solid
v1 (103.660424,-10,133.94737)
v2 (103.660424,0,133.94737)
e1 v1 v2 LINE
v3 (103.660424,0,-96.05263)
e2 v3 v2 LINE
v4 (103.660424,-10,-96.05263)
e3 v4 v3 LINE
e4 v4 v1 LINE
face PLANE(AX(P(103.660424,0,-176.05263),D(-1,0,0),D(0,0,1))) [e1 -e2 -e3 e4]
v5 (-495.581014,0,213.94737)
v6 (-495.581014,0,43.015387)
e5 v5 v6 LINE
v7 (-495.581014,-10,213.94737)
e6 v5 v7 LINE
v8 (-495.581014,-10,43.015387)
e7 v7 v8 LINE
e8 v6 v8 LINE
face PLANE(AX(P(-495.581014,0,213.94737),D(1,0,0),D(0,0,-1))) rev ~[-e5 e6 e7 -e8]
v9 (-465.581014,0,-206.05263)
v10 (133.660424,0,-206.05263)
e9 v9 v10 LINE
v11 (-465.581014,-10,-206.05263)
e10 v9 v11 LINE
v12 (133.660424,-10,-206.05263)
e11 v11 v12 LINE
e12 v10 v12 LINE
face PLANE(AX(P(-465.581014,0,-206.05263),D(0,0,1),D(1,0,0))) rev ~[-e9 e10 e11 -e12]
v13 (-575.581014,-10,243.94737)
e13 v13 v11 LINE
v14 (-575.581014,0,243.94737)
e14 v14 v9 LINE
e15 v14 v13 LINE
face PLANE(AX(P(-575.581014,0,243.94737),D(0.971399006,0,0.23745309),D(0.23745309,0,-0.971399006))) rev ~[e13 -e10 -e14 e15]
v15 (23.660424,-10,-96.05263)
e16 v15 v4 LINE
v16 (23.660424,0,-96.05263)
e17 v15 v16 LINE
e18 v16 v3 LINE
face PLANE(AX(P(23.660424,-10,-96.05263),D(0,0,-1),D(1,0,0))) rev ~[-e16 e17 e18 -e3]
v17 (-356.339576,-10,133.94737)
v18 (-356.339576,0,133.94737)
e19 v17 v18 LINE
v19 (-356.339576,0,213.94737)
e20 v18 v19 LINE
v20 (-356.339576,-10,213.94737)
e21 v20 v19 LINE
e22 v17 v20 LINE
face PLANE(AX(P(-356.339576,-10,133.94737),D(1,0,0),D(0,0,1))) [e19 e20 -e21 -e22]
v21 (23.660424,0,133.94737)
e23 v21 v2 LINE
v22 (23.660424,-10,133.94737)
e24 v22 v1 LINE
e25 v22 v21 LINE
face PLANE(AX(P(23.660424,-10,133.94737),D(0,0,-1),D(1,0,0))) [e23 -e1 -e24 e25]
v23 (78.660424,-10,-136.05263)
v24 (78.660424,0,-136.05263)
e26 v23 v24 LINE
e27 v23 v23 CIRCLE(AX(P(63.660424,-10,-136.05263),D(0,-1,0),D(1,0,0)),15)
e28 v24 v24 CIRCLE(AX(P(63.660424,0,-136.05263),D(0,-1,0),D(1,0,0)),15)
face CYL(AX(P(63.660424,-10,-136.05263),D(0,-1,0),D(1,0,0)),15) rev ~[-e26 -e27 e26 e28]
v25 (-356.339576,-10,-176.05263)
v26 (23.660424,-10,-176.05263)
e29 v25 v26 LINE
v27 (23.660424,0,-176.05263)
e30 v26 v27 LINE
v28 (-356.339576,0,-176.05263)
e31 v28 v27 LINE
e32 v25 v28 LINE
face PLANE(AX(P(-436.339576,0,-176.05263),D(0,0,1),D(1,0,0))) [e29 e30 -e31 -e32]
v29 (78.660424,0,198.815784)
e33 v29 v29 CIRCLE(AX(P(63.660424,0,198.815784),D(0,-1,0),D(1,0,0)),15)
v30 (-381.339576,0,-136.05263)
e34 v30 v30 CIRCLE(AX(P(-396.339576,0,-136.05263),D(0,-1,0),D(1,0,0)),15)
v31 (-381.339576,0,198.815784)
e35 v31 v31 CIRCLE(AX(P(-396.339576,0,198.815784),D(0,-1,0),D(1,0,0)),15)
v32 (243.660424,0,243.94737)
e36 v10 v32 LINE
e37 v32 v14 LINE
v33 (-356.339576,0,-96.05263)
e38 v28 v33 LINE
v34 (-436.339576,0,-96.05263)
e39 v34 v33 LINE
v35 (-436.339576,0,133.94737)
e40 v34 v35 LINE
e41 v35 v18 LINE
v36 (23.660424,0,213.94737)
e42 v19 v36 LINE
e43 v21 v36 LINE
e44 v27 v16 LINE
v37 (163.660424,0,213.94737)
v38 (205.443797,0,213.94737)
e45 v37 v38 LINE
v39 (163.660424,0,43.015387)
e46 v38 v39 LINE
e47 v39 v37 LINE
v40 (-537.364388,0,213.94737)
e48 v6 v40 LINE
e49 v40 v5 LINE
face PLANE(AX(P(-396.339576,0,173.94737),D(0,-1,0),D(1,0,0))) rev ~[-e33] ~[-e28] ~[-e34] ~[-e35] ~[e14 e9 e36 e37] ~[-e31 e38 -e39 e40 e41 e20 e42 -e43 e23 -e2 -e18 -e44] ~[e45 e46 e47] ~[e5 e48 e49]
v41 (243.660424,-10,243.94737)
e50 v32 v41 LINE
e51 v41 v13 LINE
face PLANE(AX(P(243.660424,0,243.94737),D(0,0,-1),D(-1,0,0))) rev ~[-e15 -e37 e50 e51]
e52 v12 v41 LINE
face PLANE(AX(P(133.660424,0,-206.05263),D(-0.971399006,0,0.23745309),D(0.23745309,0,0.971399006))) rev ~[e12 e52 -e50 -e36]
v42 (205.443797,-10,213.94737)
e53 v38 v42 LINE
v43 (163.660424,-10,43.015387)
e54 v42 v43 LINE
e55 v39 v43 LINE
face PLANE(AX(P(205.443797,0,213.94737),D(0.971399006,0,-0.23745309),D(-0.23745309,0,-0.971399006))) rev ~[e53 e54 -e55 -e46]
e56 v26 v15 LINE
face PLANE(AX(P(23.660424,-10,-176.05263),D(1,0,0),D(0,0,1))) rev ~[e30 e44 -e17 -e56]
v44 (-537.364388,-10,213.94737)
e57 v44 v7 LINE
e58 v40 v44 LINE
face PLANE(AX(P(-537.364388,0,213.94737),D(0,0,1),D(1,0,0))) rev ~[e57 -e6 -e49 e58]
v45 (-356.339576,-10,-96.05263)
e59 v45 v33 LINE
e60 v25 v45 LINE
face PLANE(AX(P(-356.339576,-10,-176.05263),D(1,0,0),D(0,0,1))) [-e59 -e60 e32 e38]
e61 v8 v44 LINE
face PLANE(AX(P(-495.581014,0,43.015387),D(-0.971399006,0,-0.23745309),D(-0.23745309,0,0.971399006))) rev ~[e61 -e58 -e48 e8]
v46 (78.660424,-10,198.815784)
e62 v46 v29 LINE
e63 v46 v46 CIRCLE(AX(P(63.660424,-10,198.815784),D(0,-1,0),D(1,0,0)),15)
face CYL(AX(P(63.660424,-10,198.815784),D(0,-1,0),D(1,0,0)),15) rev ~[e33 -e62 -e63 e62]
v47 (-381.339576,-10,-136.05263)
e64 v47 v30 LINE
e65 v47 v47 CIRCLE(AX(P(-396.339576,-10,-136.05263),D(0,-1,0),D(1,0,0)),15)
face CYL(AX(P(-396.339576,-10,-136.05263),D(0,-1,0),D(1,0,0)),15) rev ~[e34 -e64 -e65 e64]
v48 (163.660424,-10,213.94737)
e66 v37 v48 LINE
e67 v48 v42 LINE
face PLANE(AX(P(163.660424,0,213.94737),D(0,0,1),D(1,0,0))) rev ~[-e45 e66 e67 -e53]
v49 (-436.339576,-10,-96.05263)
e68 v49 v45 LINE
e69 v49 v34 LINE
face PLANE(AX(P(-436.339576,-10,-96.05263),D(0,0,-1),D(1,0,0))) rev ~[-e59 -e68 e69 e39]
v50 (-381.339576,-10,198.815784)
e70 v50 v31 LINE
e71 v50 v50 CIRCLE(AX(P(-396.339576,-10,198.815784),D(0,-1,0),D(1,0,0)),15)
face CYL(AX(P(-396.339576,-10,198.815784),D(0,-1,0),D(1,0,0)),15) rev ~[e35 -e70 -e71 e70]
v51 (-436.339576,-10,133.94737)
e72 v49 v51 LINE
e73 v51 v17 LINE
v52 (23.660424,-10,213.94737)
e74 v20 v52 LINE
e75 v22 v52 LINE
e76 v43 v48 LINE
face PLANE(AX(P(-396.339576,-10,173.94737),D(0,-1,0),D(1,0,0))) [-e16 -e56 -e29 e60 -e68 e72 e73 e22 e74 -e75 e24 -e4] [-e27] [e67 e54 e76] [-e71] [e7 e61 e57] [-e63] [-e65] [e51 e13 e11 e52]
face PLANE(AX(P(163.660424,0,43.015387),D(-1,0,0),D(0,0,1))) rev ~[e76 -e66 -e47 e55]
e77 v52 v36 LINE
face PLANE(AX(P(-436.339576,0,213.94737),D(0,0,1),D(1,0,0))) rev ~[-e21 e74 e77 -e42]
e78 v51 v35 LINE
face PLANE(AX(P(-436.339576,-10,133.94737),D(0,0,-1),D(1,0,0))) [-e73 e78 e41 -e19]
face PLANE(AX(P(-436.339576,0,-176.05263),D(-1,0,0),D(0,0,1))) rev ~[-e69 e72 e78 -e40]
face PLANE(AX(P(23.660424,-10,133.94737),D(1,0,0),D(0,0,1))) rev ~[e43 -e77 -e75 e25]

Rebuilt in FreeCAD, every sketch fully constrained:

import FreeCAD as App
import Part
import Sketcher

V = App.Vector

doc = App.newDocument("Part")
body = doc.addObject("PartDesign::Body", "Body")

sketch1 = body.newObject("Sketcher::SketchObject", "Sketch")
sketch1.AttachmentSupport = (doc.getObject("XZ_Plane"), [""])
sketch1.MapMode = "FlatFace"
sketch1.addGeometry(Part.LineSegment(V(-575.581014, 243.94737, 0), V(-465.581014, -206.05263, 0)), False)
sketch1.addGeometry(Part.LineSegment(V(-465.581014, -206.05263, 0), V(133.660424, -206.05263, 0)), False)
sketch1.addGeometry(Part.LineSegment(V(133.660424, -206.05263, 0), V(243.660424, 243.94737, 0)), False)
sketch1.addGeometry(Part.LineSegment(V(243.660424, 243.94737, 0), V(-575.581014, 243.94737, 0)), False)
sketch1.addGeometry(Part.LineSegment(V(103.660424, -176.05263, 0), V(-436.339576, -176.05263, 0)), False)
sketch1.addGeometry(Part.LineSegment(V(-436.339576, -176.05263, 0), V(-436.339576, 213.94737, 0)), False)
sketch1.addGeometry(Part.LineSegment(V(-436.339576, 213.94737, 0), V(103.660424, 213.94737, 0)), False)
sketch1.addGeometry(Part.LineSegment(V(103.660424, 213.94737, 0), V(103.660424, -176.05263, 0)), False)
sketch1.addGeometry(Part.LineSegment(V(-495.581014, 213.94737, 0), V(-495.581014, 43.015387, 0)), False)
sketch1.addGeometry(Part.LineSegment(V(-495.581014, 43.015387, 0), V(-537.364388, 213.94737, 0)), False)
sketch1.addGeometry(Part.LineSegment(V(-537.364388, 213.94737, 0), V(-495.581014, 213.94737, 0)), False)
sketch1.addGeometry(Part.LineSegment(V(163.660424, 43.015387, 0), V(163.660424, 213.94737, 0)), False)
sketch1.addGeometry(Part.LineSegment(V(163.660424, 213.94737, 0), V(205.443797, 213.94737, 0)), False)
sketch1.addGeometry(Part.LineSegment(V(205.443797, 213.94737, 0), V(163.660424, 43.015387, 0)), False)
sketch1.addConstraint(Sketcher.Constraint("Coincident", 0, 2, 1, 1))
sketch1.addConstraint(Sketcher.Constraint("Coincident", 1, 2, 2, 1))
sketch1.addConstraint(Sketcher.Constraint("Coincident", 2, 2, 3, 1))
sketch1.addConstraint(Sketcher.Constraint("Coincident", 3, 2, 0, 1))
sketch1.addConstraint(Sketcher.Constraint("Coincident", 4, 2, 5, 1))
sketch1.addConstraint(Sketcher.Constraint("Coincident", 5, 2, 6, 1))
sketch1.addConstraint(Sketcher.Constraint("Coincident", 6, 2, 7, 1))
sketch1.addConstraint(Sketcher.Constraint("Coincident", 7, 2, 4, 1))
sketch1.addConstraint(Sketcher.Constraint("Coincident", 8, 2, 9, 1))
sketch1.addConstraint(Sketcher.Constraint("Coincident", 9, 2, 10, 1))
sketch1.addConstraint(Sketcher.Constraint("Coincident", 10, 2, 8, 1))
sketch1.addConstraint(Sketcher.Constraint("Coincident", 11, 2, 12, 1))
sketch1.addConstraint(Sketcher.Constraint("Coincident", 12, 2, 13, 1))
sketch1.addConstraint(Sketcher.Constraint("Coincident", 13, 2, 11, 1))
sketch1.addConstraint(Sketcher.Constraint("Horizontal", 1))
sketch1.addConstraint(Sketcher.Constraint("Horizontal", 3))
sketch1.addConstraint(Sketcher.Constraint("Horizontal", 4))
sketch1.addConstraint(Sketcher.Constraint("Vertical", 5))
sketch1.addConstraint(Sketcher.Constraint("Horizontal", 6))
sketch1.addConstraint(Sketcher.Constraint("Vertical", 7))
sketch1.addConstraint(Sketcher.Constraint("Vertical", 8))
sketch1.addConstraint(Sketcher.Constraint("Horizontal", 10))
sketch1.addConstraint(Sketcher.Constraint("Vertical", 11))
sketch1.addConstraint(Sketcher.Constraint("Horizontal", 12))
sketch1.addConstraint(Sketcher.Constraint("Parallel", 0, 9))
sketch1.addConstraint(Sketcher.Constraint("Parallel", 2, 13))
sketch1.addConstraint(Sketcher.Constraint("Horizontal", 6, 2, 9, 2))
sketch1.addConstraint(Sketcher.Constraint("Horizontal", 10, 2, 11, 2))
sketch1.addConstraint(Sketcher.Constraint("Horizontal", 8, 2, 13, 2))
sketch1.addConstraint(Sketcher.Constraint("Equal", 10, 12))
sketch1.addConstraint(Sketcher.Constraint("DistanceX", 4, 2, 4, 1, 540.0))
sketch1.addConstraint(Sketcher.Constraint("DistanceY", 5, 1, 5, 2, 390.0))
sketch1.addConstraint(Sketcher.Constraint("DistanceX", 1, 2, 2, 2, 110.0))
sketch1.addConstraint(Sketcher.Constraint("DistanceY", 1, 2, 2, 2, 450.0))
sketch1.addConstraint(Sketcher.Constraint("DistanceY", 0, 2, 4, 2, 30.0))
sketch1.addConstraint(Sketcher.Constraint("DistanceX", 4, 2, 1, 2, 570.0))
sketch1.addConstraint(Sketcher.Constraint("DistanceX", 3, 2, 8, 2, 80.0))
sketch1.addConstraint(Sketcher.Constraint("DistanceX", 6, 2, 11, 2, 60.0))
sketch1.addConstraint(Sketcher.Constraint("Distance", 9, 175.96475))
sketch1.addConstraint(Sketcher.Constraint("DistanceX", 1, 1, 1, 2, 599.241438))
sketch1.addConstraint(Sketcher.Constraint("DistanceY", 0, 2, -1, 1, 206.05263))
sketch1.addConstraint(Sketcher.Constraint("DistanceX", 0, 2, -1, 1, 465.581014))
pad1 = body.newObject("PartDesign::Pad", "Pad")
pad1.Profile = sketch1
pad1.Length = 10

sketch2 = body.newObject("Sketcher::SketchObject", "Sketch001")
sketch2.AttachmentSupport = (doc.getObject("XZ_Plane"), [""])
sketch2.MapMode = "FlatFace"
sketch2.AttachmentOffset = App.Placement(V(0, 0, 10), App.Rotation())
sketch2.addGeometry(Part.LineSegment(V(-436.339576, 213.94737, 0), V(-436.339576, 133.94737, 0)), False)
sketch2.addGeometry(Part.LineSegment(V(-436.339576, 133.94737, 0), V(-356.339576, 133.94737, 0)), False)
sketch2.addGeometry(Part.LineSegment(V(-356.339576, 133.94737, 0), V(-356.339576, 213.94737, 0)), False)
sketch2.addGeometry(Part.LineSegment(V(-356.339576, 213.94737, 0), V(-436.339576, 213.94737, 0)), False)
sketch2.addGeometry(Part.Circle(V(-396.339576, 198.815784, 0), V(0, 0, 1), 15), False)
sketch2.addGeometry(Part.LineSegment(V(23.660424, 213.94737, 0), V(23.660424, 133.94737, 0)), False)
sketch2.addGeometry(Part.LineSegment(V(23.660424, 133.94737, 0), V(103.660424, 133.94737, 0)), False)
sketch2.addGeometry(Part.LineSegment(V(103.660424, 133.94737, 0), V(103.660424, 213.94737, 0)), False)
sketch2.addGeometry(Part.LineSegment(V(103.660424, 213.94737, 0), V(23.660424, 213.94737, 0)), False)
sketch2.addGeometry(Part.Circle(V(63.660424, 198.815784, 0), V(0, 0, 1), 15), False)
sketch2.addGeometry(Part.LineSegment(V(23.660424, -96.05263, 0), V(23.660424, -176.05263, 0)), False)
sketch2.addGeometry(Part.LineSegment(V(23.660424, -176.05263, 0), V(103.660424, -176.05263, 0)), False)
sketch2.addGeometry(Part.LineSegment(V(103.660424, -176.05263, 0), V(103.660424, -96.05263, 0)), False)
sketch2.addGeometry(Part.LineSegment(V(103.660424, -96.05263, 0), V(23.660424, -96.05263, 0)), False)
sketch2.addGeometry(Part.Circle(V(63.660424, -136.05263, 0), V(0, 0, 1), 15), False)
sketch2.addGeometry(Part.LineSegment(V(-436.339576, -96.05263, 0), V(-436.339576, -176.05263, 0)), False)
sketch2.addGeometry(Part.LineSegment(V(-436.339576, -176.05263, 0), V(-356.339576, -176.05263, 0)), False)
sketch2.addGeometry(Part.LineSegment(V(-356.339576, -176.05263, 0), V(-356.339576, -96.05263, 0)), False)
sketch2.addGeometry(Part.LineSegment(V(-356.339576, -96.05263, 0), V(-436.339576, -96.05263, 0)), False)
sketch2.addGeometry(Part.Circle(V(-396.339576, -136.05263, 0), V(0, 0, 1), 15), False)
sketch2.addConstraint(Sketcher.Constraint("Coincident", 0, 2, 1, 1))
sketch2.addConstraint(Sketcher.Constraint("Coincident", 1, 2, 2, 1))
sketch2.addConstraint(Sketcher.Constraint("Coincident", 2, 2, 3, 1))
sketch2.addConstraint(Sketcher.Constraint("Coincident", 3, 2, 0, 1))
sketch2.addConstraint(Sketcher.Constraint("Coincident", 5, 2, 6, 1))
sketch2.addConstraint(Sketcher.Constraint("Coincident", 6, 2, 7, 1))
sketch2.addConstraint(Sketcher.Constraint("Coincident", 7, 2, 8, 1))
sketch2.addConstraint(Sketcher.Constraint("Coincident", 8, 2, 5, 1))
sketch2.addConstraint(Sketcher.Constraint("Coincident", 10, 2, 11, 1))
sketch2.addConstraint(Sketcher.Constraint("Coincident", 11, 2, 12, 1))
sketch2.addConstraint(Sketcher.Constraint("Coincident", 12, 2, 13, 1))
sketch2.addConstraint(Sketcher.Constraint("Coincident", 13, 2, 10, 1))
sketch2.addConstraint(Sketcher.Constraint("Coincident", 15, 2, 16, 1))
sketch2.addConstraint(Sketcher.Constraint("Coincident", 16, 2, 17, 1))
sketch2.addConstraint(Sketcher.Constraint("Coincident", 17, 2, 18, 1))
sketch2.addConstraint(Sketcher.Constraint("Coincident", 18, 2, 15, 1))
sketch2.addConstraint(Sketcher.Constraint("Vertical", 0))
sketch2.addConstraint(Sketcher.Constraint("Horizontal", 1))
sketch2.addConstraint(Sketcher.Constraint("Vertical", 2))
sketch2.addConstraint(Sketcher.Constraint("Horizontal", 3))
sketch2.addConstraint(Sketcher.Constraint("Vertical", 5))
sketch2.addConstraint(Sketcher.Constraint("Horizontal", 6))
sketch2.addConstraint(Sketcher.Constraint("Vertical", 7))
sketch2.addConstraint(Sketcher.Constraint("Horizontal", 8))
sketch2.addConstraint(Sketcher.Constraint("Vertical", 10))
sketch2.addConstraint(Sketcher.Constraint("Horizontal", 11))
sketch2.addConstraint(Sketcher.Constraint("Vertical", 12))
sketch2.addConstraint(Sketcher.Constraint("Horizontal", 13))
sketch2.addConstraint(Sketcher.Constraint("Vertical", 15))
sketch2.addConstraint(Sketcher.Constraint("Horizontal", 16))
sketch2.addConstraint(Sketcher.Constraint("Vertical", 17))
sketch2.addConstraint(Sketcher.Constraint("Horizontal", 18))
sketch2.addConstraint(Sketcher.Constraint("Equal", 4, 9))
sketch2.addConstraint(Sketcher.Constraint("Equal", 9, 14))
sketch2.addConstraint(Sketcher.Constraint("Equal", 14, 19))
sketch2.addConstraint(Sketcher.Constraint("Horizontal", 4, 3, 9, 3))
sketch2.addConstraint(Sketcher.Constraint("Horizontal", 14, 3, 19, 3))
sketch2.addConstraint(Sketcher.Constraint("Horizontal", 1, 2, 5, 2))
sketch2.addConstraint(Sketcher.Constraint("Horizontal", 3, 2, 7, 2))
sketch2.addConstraint(Sketcher.Constraint("Horizontal", 11, 2, 15, 2))
sketch2.addConstraint(Sketcher.Constraint("Horizontal", 13, 2, 17, 2))
sketch2.addConstraint(Sketcher.Constraint("Vertical", 9, 3, 14, 3))
sketch2.addConstraint(Sketcher.Constraint("Vertical", 4, 3, 19, 3))
sketch2.addConstraint(Sketcher.Constraint("Vertical", 8, 2, 10, 2))
sketch2.addConstraint(Sketcher.Constraint("Vertical", 7, 2, 11, 2))
sketch2.addConstraint(Sketcher.Constraint("Vertical", 3, 2, 15, 2))
sketch2.addConstraint(Sketcher.Constraint("Vertical", 2, 2, 16, 2))
sketch2.addConstraint(Sketcher.Constraint("Equal", 3, 6))
sketch2.addConstraint(Sketcher.Constraint("Equal", 18, 0))
sketch2.addConstraint(Sketcher.Constraint("Equal", 7, 10))
sketch2.addConstraint(Sketcher.Constraint("Diameter", 4, 30.0))
sketch2.addConstraint(Sketcher.Constraint("DistanceX", 1, 1, 1, 2, 80.0))
sketch2.addConstraint(Sketcher.Constraint("DistanceX", 4, 3, 9, 3, 460.0))
sketch2.addConstraint(Sketcher.Constraint("DistanceX", 0, 2, 4, 3, 40.0))
sketch2.addConstraint(Sketcher.Constraint("DistanceY", 19, 3, 0, 2, 270.0))
sketch2.addConstraint(Sketcher.Constraint("DistanceX", 5, 2, 9, 3, 40.0))
sketch2.addConstraint(Sketcher.Constraint("DistanceY", 10, 2, 14, 3, 40.0))
sketch2.addConstraint(Sketcher.Constraint("DistanceY", 14, 3, -1, 1, 136.05263))
sketch2.addConstraint(Sketcher.Constraint("DistanceX", 4, 3, -1, 1, 396.339576))
sketch2.addConstraint(Sketcher.Constraint("DistanceY", -1, 1, 4, 3, 198.815784))
pad2 = body.newObject("PartDesign::Pad", "Pad001")
pad2.Profile = sketch2
pad2.Length = 10
pad2.Reversed = True

doc.recompute()
